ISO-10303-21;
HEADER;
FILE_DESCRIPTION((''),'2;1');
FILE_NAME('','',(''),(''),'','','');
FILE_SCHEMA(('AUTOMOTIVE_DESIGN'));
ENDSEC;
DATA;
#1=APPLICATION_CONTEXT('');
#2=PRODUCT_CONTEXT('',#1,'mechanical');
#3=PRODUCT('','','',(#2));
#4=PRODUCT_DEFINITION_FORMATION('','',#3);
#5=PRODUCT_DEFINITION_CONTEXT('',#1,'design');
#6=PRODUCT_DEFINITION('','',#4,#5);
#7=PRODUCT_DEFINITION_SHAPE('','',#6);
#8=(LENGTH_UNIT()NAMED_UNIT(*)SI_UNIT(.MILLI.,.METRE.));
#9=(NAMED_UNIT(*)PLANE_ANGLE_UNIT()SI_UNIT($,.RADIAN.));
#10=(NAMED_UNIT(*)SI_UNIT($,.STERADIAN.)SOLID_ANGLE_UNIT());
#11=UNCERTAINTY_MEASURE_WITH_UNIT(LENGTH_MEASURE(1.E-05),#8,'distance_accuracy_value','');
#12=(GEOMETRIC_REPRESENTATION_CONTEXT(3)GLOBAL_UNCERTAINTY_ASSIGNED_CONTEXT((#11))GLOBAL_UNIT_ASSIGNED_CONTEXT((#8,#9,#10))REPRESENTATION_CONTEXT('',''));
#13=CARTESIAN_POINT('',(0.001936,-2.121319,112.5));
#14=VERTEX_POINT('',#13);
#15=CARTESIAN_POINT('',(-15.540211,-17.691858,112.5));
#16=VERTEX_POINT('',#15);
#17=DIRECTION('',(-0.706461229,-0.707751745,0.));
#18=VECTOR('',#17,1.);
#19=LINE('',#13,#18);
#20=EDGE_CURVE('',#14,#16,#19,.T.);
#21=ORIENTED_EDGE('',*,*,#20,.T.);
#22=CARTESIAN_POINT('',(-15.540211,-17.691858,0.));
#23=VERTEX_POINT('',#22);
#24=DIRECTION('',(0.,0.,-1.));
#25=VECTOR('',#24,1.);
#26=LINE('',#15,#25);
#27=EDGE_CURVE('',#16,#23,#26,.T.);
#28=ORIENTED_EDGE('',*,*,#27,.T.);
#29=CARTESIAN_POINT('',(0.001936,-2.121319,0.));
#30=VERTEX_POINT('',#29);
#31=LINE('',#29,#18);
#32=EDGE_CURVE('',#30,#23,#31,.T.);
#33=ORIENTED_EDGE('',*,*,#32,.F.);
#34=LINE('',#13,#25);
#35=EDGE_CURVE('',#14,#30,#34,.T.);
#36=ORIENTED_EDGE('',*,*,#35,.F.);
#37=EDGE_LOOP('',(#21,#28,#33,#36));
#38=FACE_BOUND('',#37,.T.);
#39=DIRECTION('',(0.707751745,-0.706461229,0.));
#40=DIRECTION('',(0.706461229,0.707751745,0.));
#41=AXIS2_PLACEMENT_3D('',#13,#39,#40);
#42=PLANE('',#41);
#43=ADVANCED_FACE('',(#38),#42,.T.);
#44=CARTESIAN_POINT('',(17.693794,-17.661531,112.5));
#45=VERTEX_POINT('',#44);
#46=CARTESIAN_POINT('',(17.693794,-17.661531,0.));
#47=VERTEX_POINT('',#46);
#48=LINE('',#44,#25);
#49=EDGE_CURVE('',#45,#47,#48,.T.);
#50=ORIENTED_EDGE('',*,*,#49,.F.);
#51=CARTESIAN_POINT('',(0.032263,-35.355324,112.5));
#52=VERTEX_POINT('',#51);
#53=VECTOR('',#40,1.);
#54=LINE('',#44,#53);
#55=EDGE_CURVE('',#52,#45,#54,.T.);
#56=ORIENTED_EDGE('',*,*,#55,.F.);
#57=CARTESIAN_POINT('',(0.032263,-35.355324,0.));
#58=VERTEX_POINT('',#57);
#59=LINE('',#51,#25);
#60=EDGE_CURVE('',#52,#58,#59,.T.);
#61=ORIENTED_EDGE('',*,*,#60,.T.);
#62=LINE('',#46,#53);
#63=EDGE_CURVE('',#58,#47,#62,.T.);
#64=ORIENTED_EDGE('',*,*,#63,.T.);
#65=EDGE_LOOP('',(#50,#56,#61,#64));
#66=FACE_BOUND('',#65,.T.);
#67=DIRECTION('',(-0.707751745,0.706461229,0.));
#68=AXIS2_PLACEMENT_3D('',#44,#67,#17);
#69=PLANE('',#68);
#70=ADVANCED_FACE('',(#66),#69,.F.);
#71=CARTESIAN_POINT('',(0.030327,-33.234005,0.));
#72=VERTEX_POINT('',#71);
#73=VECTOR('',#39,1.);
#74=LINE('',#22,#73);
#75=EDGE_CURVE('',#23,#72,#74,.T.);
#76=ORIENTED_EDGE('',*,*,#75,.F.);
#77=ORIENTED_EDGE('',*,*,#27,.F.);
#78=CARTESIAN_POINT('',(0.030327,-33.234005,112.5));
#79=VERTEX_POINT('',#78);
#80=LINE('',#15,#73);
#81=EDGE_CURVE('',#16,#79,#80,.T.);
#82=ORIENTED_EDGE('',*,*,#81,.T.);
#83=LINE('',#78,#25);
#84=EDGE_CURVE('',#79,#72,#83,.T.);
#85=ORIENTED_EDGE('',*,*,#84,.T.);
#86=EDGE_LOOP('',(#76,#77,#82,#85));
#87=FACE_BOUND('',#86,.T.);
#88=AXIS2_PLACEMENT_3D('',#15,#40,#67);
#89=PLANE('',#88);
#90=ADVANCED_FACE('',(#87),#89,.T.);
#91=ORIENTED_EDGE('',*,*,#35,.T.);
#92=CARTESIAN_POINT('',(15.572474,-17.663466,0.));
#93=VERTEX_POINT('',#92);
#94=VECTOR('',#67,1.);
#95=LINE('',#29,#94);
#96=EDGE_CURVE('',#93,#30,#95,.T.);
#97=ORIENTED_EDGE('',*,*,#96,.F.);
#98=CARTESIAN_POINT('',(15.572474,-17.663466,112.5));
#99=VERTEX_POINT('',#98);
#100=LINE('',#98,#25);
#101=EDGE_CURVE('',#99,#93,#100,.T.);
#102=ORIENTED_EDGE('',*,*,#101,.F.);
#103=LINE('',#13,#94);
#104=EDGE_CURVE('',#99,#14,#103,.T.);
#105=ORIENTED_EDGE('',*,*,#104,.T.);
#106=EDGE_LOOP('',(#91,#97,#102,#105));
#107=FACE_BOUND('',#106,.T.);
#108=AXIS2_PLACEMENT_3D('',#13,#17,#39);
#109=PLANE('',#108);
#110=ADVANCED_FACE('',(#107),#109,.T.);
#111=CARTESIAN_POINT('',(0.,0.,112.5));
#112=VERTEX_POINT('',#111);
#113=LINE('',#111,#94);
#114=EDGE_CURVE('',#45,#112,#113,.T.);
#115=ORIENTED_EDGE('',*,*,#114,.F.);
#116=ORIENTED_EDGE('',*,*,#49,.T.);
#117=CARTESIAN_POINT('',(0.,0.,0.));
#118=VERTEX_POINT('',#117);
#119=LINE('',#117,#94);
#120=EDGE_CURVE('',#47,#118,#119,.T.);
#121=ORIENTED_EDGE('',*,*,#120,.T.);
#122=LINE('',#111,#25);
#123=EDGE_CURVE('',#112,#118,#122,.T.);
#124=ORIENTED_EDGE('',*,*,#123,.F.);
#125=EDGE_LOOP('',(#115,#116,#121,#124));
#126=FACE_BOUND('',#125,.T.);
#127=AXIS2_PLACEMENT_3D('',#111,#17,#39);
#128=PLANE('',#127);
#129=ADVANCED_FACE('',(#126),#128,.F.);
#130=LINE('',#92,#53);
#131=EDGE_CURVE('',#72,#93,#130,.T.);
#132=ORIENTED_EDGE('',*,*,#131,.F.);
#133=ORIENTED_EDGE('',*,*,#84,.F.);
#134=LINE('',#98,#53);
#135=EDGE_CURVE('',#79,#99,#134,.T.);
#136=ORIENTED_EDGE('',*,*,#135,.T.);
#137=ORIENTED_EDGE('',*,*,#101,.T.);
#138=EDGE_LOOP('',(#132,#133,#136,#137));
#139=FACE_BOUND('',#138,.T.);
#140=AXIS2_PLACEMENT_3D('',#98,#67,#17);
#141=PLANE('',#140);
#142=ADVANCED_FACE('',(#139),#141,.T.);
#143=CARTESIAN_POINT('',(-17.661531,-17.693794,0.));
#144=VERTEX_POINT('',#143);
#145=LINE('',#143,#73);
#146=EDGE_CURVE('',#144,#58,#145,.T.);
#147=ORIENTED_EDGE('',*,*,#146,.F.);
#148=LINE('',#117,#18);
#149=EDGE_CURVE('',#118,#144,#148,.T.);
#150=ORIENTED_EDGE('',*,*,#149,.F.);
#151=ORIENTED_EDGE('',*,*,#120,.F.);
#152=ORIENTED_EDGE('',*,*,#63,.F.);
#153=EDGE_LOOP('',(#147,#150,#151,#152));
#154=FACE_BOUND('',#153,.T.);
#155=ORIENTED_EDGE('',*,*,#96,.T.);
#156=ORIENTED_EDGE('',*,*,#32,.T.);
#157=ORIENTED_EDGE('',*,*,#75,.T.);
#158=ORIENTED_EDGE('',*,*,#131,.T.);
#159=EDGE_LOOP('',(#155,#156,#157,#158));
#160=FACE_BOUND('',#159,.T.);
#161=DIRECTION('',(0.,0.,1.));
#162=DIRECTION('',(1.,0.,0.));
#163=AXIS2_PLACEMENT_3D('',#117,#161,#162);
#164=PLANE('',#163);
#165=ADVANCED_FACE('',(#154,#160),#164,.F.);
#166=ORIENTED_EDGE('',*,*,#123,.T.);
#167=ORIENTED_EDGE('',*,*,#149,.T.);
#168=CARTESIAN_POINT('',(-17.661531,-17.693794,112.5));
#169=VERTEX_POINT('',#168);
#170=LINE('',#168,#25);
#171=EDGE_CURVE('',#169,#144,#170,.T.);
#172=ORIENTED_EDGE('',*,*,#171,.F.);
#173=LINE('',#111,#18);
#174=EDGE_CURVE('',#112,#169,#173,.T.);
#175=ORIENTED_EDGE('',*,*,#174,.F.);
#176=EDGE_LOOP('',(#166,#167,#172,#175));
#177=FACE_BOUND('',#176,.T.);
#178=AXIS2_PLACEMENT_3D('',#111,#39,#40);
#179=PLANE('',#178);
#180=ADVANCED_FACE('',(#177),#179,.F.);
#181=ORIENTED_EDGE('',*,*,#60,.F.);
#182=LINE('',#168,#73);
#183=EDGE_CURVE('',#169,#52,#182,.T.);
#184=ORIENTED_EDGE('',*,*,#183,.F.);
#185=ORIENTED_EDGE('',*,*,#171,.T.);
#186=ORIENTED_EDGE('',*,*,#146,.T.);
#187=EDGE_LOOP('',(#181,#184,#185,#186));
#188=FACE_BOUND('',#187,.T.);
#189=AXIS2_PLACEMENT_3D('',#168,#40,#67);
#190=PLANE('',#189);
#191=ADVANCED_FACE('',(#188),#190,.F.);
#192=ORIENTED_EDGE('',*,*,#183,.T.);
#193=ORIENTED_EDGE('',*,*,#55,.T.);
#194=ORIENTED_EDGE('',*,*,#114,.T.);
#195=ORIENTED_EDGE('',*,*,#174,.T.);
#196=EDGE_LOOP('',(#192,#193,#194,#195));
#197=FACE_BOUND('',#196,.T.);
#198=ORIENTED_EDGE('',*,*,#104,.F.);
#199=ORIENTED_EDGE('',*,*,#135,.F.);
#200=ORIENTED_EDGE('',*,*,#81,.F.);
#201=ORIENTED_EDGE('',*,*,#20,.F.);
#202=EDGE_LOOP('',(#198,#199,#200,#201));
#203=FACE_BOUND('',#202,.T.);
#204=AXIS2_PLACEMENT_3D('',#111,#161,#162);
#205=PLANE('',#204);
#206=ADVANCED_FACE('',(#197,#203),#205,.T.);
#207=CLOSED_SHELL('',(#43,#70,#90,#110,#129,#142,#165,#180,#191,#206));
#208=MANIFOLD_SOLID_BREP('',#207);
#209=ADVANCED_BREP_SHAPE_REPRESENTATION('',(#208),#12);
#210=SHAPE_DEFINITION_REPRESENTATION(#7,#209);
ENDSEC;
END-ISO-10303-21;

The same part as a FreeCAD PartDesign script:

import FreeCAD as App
import Part
import Sketcher

V = App.Vector


def add_polygon(sketch, points):
    """Adds a closed chain of lines whose ends are joined by coincident constraints."""
    first, n = sketch.GeometryCount, len(points)
    for a, b in zip(points, points[1:] + points[:1]):
        sketch.addGeometry(Part.LineSegment(App.Vector(*a, 0), App.Vector(*b, 0)), False)
    for i in range(n):
        sketch.addConstraint(Sketcher.Constraint("Coincident", first + i, 2, first + (i + 1) % n, 1))

doc = App.newDocument("Part")
body = doc.addObject("PartDesign::Body", "Body")

# Sketch on XY plane
sketch1 = doc.addObject("Sketcher::SketchObject", "Sketch")
body.addObject(sketch1)
sketch1.AttachmentSupport = (doc.XY_Plane, [""])
sketch1.MapMode = "FlatFace"
add_polygon(sketch1, [(18, -18), (0, 0), (-18, -18), (0, -35)])  # lines 0-3
add_polygon(sketch1, [(0, -2), (16, -18), (0, -33), (-16, -18)])  # lines 4-7
sketch1.addConstraint([
    Sketcher.Constraint("Coincident", 0, 2, -1, 1),
    Sketcher.Constraint("Perpendicular", 0, 1),
    Sketcher.Constraint("Perpendicular", 1, 2),
    Sketcher.Constraint("Perpendicular", 2, 3),
    Sketcher.Constraint("Perpendicular", 3, 4),
    Sketcher.Constraint("Perpendicular", 4, 5),
    Sketcher.Constraint("Perpendicular", 5, 6),
    Sketcher.Constraint("Perpendicular", 6, 7),
    Sketcher.Constraint("Equal", 0, 1),
    Sketcher.Constraint("Equal", 4, 5),
    Sketcher.Constraint("Distance", 0, 25.0),
    Sketcher.Constraint("Distance", 4, 22.0),
    Sketcher.Constraint("DistanceX", 1, 2, -1, 1, 17.661531),
    Sketcher.Constraint("DistanceX", 6, 2, -1, 1, 15.540211),
    Sketcher.Constraint("DistanceY", 7, 2, -1, 1, 2.121319),
])
pad1 = doc.addObject("PartDesign::Pad", "Pad")
body.addObject(pad1)
pad1.Profile = sketch1
pad1.Length = 112.5

doc.recompute()
